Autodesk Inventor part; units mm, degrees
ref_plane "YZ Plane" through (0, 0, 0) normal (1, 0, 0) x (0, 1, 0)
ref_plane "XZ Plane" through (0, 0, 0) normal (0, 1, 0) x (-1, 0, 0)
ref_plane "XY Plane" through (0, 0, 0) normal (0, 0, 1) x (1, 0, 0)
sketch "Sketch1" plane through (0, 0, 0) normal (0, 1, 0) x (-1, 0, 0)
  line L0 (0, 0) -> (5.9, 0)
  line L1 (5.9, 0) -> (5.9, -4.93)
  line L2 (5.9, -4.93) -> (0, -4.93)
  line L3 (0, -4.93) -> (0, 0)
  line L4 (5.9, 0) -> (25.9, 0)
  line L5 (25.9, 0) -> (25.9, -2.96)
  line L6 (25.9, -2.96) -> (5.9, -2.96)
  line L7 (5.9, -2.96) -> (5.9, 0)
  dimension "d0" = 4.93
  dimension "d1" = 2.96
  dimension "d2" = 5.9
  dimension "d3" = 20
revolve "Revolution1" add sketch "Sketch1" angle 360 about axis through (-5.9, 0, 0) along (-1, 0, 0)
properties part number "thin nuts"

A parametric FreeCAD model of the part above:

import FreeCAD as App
import Part
import Sketcher
from FreeCAD import Vector


def add_polygon(sketch, points):
    """Adds a closed chain of lines whose ends are joined by coincident constraints."""
    first, n = sketch.GeometryCount, len(points)
    for a, b in zip(points, points[1:] + points[:1]):
        sketch.addGeometry(Part.LineSegment(App.Vector(*a, 0), App.Vector(*b, 0)), False)
    for i in range(n):
        sketch.addConstraint(Sketcher.Constraint("Coincident", first + i, 2, first + (i + 1) % n, 1))

doc = App.newDocument("Part")
params = doc.addObject("Spreadsheet::Sheet", "Params")
for row, (alias, value) in enumerate([
    ("sketch1_width", "20 mm"),
    ("sketch1_width2", "5.9 mm"),
    ("sketch1_height", "4.93 mm"),
    ("sketch1_height2", "2.96 mm"),
    ("revolution_angle", "360 deg"),
], start=1):
    params.set(f"A{row}", alias)
    params.set(f"B{row}", "=" + value)
    params.setAlias(f"B{row}", alias)

body = doc.addObject("PartDesign::Body", "Body")

# Sketch on XZ plane
sketch1 = body.newObject("Sketcher::SketchObject", "Sketch")
sketch1.AttachmentSupport = (doc.getObject("XZ_Plane"), [""])
sketch1.MapMode = "FlatFace"
add_polygon(sketch1, [(0, 0), (0, -4.9), (-5.9, -4.9), (-5.9, -3), (-25.9, -3), (-25.9, 0)])  # lines 0-5
sketch1.addConstraint([
    Sketcher.Constraint("Vertical", 0),
    Sketcher.Constraint("Horizontal", 1),
    Sketcher.Constraint("Vertical", 2),
    Sketcher.Constraint("Horizontal", 3),
    Sketcher.Constraint("Vertical", 4),
    Sketcher.Constraint("Horizontal", 5),
    Sketcher.Constraint("Coincident", 5, 2, -1, 1),
    Sketcher.Constraint("DistanceX", 3, 2, 3, 1, 20.0),
    Sketcher.Constraint("DistanceX", 1, 2, 1, 1, 5.9),
    Sketcher.Constraint("DistanceY", 0, 2, 0, 1, 4.93),
    Sketcher.Constraint("DistanceY", 4, 1, 4, 2, 2.96),
])
sketch1.setExpression("Constraints[13]", "Params.sketch1_width")
sketch1.setExpression("Constraints[14]", "Params.sketch1_width2")
sketch1.setExpression("Constraints[15]", "Params.sketch1_height")
sketch1.setExpression("Constraints[16]", "Params.sketch1_height2")
revolution = body.newObject("PartDesign::Revolution", "Revolution")
revolution.Profile = sketch1
revolution.ReferenceAxis = (sketch1, ["H_Axis"])
revolution.setExpression("Angle", "Params.revolution_angle")

doc.recompute()
